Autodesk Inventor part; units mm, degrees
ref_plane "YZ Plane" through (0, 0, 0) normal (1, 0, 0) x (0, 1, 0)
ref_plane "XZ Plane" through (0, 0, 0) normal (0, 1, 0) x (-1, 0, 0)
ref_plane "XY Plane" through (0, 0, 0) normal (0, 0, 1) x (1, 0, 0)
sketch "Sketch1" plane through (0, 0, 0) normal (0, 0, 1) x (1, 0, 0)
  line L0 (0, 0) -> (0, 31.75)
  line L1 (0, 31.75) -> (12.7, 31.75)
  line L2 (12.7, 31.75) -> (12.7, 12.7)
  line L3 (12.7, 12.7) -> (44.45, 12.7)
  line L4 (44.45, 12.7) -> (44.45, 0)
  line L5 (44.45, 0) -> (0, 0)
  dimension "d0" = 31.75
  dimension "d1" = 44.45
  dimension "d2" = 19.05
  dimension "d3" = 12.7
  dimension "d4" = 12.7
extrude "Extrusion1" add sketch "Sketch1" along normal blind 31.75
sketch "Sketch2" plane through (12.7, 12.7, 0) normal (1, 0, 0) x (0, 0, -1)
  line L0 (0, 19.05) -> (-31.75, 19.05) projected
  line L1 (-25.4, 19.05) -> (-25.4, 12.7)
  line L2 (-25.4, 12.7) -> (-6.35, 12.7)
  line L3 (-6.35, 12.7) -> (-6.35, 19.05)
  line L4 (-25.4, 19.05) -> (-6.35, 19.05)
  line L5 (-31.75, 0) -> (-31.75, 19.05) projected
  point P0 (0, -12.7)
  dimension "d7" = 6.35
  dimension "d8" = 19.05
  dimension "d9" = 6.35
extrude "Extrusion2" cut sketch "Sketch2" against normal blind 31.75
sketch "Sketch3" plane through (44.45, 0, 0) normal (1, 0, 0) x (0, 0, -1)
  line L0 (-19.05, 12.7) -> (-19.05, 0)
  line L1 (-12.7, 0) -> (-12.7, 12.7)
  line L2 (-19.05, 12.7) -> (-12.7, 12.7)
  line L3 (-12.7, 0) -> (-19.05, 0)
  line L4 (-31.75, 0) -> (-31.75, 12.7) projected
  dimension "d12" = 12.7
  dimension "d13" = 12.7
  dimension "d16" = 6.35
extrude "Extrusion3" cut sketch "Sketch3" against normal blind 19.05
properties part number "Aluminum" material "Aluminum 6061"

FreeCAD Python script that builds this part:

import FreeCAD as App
import Part
import Sketcher
from FreeCAD import Vector
Q = App.Units.Quantity


def add_polygon(sketch, points):
    """Adds a closed chain of lines whose ends are joined by coincident constraints."""
    first, n = sketch.GeometryCount, len(points)
    for a, b in zip(points, points[1:] + points[:1]):
        sketch.addGeometry(Part.LineSegment(App.Vector(*a, 0), App.Vector(*b, 0)), False)
    for i in range(n):
        sketch.addConstraint(Sketcher.Constraint("Coincident", first + i, 2, first + (i + 1) % n, 1))

doc = App.newDocument("Part")
body = doc.addObject("PartDesign::Body", "Body")

sketch1 = body.newObject("Sketcher::SketchObject", "Sketch")
sketch1.AttachmentSupport = (doc.getObject("XY_Plane"), [""])
sketch1.MapMode = "FlatFace"
add_polygon(sketch1, [(0, 32), (0, 0), (44, 0), (44, 13), (13, 13), (13, 32)])
sketch1.addConstraint([
    Sketcher.Constraint("Vertical", 0),
    Sketcher.Constraint("Horizontal", 1),
    Sketcher.Constraint("Vertical", 2),
    Sketcher.Constraint("Horizontal", 3),
    Sketcher.Constraint("Vertical", 4),
    Sketcher.Constraint("Horizontal", 5),
    Sketcher.Constraint("Coincident", 0, 2, -1, 1),
    Sketcher.Constraint("Equal", 3, 0),
    Sketcher.Constraint("Equal", 5, 2),
    Sketcher.Constraint("DistanceX", 5, 2, 5, 1, Q("0.5 in")),
    Sketcher.Constraint("DistanceX", 1, 1, 1, 2, Q("1.75 in")),
])
pad1 = body.newObject("PartDesign::Pad", "Pad")
pad1.Profile = sketch1
pad1.Length = Q("1.25 in")

sketch2 = body.newObject("Sketcher::SketchObject", "Sketch001")
sketch2.AttachmentSupport = (doc.getObject("YZ_Plane"), [""])
sketch2.MapMode = "FlatFace"
sketch2.AttachmentOffset = App.Placement(Vector(0, 0, 0.5 * 25.4), App.Rotation())
add_polygon(sketch2, [(25, 6), (32, 6), (32, 25), (25, 25)])
sketch2.addConstraint([
    Sketcher.Constraint("Horizontal", 0),
    Sketcher.Constraint("Vertical", 1),
    Sketcher.Constraint("Horizontal", 2),
    Sketcher.Constraint("Vertical", 3),
    Sketcher.Constraint("DistanceX", 0, 1, 0, 2, Q("0.25 in")),
    Sketcher.Constraint("DistanceY", 1, 1, 1, 2, Q("0.75 in")),
    Sketcher.Constraint("DistanceY", -1, 1, 0, 2, Q("0.25 in")),
    Sketcher.Constraint("DistanceX", -1, 1, 2, 2, Q("1 in")),
])
pocket1 = body.newObject("PartDesign::Pocket", "Pocket")
pocket1.Profile = sketch2
pocket1.Length = Q("1.25 in")

sketch3 = body.newObject("Sketcher::SketchObject", "Sketch002")
sketch3.AttachmentSupport = (doc.getObject("YZ_Plane"), [""])
sketch3.MapMode = "FlatFace"
sketch3.AttachmentOffset = App.Placement(Vector(0, 0, 1.75 * 25.4), App.Rotation())
add_polygon(sketch3, [(13, 13), (13, 19), (0, 19), (0, 13)])
sketch3.addConstraint([
    Sketcher.Constraint("Vertical", 0),
    Sketcher.Constraint("Horizontal", 1),
    Sketcher.Constraint("Vertical", 2),
    Sketcher.Constraint("Horizontal", 3),
    Sketcher.Constraint("PointOnObject", 1, 2, -2),
    Sketcher.Constraint("DistanceX", 1, 2, 1, 1, Q("0.5 in")),
    Sketcher.Constraint("DistanceY", 0, 1, 0, 2, Q("0.25 in")),
    Sketcher.Constraint("DistanceY", -1, 1, 2, 2, Q("0.5 in")),
])
pocket2 = body.newObject("PartDesign::Pocket", "Pocket001")
pocket2.Profile = sketch3
pocket2.Length = Q("0.75 in")

doc.recompute()
